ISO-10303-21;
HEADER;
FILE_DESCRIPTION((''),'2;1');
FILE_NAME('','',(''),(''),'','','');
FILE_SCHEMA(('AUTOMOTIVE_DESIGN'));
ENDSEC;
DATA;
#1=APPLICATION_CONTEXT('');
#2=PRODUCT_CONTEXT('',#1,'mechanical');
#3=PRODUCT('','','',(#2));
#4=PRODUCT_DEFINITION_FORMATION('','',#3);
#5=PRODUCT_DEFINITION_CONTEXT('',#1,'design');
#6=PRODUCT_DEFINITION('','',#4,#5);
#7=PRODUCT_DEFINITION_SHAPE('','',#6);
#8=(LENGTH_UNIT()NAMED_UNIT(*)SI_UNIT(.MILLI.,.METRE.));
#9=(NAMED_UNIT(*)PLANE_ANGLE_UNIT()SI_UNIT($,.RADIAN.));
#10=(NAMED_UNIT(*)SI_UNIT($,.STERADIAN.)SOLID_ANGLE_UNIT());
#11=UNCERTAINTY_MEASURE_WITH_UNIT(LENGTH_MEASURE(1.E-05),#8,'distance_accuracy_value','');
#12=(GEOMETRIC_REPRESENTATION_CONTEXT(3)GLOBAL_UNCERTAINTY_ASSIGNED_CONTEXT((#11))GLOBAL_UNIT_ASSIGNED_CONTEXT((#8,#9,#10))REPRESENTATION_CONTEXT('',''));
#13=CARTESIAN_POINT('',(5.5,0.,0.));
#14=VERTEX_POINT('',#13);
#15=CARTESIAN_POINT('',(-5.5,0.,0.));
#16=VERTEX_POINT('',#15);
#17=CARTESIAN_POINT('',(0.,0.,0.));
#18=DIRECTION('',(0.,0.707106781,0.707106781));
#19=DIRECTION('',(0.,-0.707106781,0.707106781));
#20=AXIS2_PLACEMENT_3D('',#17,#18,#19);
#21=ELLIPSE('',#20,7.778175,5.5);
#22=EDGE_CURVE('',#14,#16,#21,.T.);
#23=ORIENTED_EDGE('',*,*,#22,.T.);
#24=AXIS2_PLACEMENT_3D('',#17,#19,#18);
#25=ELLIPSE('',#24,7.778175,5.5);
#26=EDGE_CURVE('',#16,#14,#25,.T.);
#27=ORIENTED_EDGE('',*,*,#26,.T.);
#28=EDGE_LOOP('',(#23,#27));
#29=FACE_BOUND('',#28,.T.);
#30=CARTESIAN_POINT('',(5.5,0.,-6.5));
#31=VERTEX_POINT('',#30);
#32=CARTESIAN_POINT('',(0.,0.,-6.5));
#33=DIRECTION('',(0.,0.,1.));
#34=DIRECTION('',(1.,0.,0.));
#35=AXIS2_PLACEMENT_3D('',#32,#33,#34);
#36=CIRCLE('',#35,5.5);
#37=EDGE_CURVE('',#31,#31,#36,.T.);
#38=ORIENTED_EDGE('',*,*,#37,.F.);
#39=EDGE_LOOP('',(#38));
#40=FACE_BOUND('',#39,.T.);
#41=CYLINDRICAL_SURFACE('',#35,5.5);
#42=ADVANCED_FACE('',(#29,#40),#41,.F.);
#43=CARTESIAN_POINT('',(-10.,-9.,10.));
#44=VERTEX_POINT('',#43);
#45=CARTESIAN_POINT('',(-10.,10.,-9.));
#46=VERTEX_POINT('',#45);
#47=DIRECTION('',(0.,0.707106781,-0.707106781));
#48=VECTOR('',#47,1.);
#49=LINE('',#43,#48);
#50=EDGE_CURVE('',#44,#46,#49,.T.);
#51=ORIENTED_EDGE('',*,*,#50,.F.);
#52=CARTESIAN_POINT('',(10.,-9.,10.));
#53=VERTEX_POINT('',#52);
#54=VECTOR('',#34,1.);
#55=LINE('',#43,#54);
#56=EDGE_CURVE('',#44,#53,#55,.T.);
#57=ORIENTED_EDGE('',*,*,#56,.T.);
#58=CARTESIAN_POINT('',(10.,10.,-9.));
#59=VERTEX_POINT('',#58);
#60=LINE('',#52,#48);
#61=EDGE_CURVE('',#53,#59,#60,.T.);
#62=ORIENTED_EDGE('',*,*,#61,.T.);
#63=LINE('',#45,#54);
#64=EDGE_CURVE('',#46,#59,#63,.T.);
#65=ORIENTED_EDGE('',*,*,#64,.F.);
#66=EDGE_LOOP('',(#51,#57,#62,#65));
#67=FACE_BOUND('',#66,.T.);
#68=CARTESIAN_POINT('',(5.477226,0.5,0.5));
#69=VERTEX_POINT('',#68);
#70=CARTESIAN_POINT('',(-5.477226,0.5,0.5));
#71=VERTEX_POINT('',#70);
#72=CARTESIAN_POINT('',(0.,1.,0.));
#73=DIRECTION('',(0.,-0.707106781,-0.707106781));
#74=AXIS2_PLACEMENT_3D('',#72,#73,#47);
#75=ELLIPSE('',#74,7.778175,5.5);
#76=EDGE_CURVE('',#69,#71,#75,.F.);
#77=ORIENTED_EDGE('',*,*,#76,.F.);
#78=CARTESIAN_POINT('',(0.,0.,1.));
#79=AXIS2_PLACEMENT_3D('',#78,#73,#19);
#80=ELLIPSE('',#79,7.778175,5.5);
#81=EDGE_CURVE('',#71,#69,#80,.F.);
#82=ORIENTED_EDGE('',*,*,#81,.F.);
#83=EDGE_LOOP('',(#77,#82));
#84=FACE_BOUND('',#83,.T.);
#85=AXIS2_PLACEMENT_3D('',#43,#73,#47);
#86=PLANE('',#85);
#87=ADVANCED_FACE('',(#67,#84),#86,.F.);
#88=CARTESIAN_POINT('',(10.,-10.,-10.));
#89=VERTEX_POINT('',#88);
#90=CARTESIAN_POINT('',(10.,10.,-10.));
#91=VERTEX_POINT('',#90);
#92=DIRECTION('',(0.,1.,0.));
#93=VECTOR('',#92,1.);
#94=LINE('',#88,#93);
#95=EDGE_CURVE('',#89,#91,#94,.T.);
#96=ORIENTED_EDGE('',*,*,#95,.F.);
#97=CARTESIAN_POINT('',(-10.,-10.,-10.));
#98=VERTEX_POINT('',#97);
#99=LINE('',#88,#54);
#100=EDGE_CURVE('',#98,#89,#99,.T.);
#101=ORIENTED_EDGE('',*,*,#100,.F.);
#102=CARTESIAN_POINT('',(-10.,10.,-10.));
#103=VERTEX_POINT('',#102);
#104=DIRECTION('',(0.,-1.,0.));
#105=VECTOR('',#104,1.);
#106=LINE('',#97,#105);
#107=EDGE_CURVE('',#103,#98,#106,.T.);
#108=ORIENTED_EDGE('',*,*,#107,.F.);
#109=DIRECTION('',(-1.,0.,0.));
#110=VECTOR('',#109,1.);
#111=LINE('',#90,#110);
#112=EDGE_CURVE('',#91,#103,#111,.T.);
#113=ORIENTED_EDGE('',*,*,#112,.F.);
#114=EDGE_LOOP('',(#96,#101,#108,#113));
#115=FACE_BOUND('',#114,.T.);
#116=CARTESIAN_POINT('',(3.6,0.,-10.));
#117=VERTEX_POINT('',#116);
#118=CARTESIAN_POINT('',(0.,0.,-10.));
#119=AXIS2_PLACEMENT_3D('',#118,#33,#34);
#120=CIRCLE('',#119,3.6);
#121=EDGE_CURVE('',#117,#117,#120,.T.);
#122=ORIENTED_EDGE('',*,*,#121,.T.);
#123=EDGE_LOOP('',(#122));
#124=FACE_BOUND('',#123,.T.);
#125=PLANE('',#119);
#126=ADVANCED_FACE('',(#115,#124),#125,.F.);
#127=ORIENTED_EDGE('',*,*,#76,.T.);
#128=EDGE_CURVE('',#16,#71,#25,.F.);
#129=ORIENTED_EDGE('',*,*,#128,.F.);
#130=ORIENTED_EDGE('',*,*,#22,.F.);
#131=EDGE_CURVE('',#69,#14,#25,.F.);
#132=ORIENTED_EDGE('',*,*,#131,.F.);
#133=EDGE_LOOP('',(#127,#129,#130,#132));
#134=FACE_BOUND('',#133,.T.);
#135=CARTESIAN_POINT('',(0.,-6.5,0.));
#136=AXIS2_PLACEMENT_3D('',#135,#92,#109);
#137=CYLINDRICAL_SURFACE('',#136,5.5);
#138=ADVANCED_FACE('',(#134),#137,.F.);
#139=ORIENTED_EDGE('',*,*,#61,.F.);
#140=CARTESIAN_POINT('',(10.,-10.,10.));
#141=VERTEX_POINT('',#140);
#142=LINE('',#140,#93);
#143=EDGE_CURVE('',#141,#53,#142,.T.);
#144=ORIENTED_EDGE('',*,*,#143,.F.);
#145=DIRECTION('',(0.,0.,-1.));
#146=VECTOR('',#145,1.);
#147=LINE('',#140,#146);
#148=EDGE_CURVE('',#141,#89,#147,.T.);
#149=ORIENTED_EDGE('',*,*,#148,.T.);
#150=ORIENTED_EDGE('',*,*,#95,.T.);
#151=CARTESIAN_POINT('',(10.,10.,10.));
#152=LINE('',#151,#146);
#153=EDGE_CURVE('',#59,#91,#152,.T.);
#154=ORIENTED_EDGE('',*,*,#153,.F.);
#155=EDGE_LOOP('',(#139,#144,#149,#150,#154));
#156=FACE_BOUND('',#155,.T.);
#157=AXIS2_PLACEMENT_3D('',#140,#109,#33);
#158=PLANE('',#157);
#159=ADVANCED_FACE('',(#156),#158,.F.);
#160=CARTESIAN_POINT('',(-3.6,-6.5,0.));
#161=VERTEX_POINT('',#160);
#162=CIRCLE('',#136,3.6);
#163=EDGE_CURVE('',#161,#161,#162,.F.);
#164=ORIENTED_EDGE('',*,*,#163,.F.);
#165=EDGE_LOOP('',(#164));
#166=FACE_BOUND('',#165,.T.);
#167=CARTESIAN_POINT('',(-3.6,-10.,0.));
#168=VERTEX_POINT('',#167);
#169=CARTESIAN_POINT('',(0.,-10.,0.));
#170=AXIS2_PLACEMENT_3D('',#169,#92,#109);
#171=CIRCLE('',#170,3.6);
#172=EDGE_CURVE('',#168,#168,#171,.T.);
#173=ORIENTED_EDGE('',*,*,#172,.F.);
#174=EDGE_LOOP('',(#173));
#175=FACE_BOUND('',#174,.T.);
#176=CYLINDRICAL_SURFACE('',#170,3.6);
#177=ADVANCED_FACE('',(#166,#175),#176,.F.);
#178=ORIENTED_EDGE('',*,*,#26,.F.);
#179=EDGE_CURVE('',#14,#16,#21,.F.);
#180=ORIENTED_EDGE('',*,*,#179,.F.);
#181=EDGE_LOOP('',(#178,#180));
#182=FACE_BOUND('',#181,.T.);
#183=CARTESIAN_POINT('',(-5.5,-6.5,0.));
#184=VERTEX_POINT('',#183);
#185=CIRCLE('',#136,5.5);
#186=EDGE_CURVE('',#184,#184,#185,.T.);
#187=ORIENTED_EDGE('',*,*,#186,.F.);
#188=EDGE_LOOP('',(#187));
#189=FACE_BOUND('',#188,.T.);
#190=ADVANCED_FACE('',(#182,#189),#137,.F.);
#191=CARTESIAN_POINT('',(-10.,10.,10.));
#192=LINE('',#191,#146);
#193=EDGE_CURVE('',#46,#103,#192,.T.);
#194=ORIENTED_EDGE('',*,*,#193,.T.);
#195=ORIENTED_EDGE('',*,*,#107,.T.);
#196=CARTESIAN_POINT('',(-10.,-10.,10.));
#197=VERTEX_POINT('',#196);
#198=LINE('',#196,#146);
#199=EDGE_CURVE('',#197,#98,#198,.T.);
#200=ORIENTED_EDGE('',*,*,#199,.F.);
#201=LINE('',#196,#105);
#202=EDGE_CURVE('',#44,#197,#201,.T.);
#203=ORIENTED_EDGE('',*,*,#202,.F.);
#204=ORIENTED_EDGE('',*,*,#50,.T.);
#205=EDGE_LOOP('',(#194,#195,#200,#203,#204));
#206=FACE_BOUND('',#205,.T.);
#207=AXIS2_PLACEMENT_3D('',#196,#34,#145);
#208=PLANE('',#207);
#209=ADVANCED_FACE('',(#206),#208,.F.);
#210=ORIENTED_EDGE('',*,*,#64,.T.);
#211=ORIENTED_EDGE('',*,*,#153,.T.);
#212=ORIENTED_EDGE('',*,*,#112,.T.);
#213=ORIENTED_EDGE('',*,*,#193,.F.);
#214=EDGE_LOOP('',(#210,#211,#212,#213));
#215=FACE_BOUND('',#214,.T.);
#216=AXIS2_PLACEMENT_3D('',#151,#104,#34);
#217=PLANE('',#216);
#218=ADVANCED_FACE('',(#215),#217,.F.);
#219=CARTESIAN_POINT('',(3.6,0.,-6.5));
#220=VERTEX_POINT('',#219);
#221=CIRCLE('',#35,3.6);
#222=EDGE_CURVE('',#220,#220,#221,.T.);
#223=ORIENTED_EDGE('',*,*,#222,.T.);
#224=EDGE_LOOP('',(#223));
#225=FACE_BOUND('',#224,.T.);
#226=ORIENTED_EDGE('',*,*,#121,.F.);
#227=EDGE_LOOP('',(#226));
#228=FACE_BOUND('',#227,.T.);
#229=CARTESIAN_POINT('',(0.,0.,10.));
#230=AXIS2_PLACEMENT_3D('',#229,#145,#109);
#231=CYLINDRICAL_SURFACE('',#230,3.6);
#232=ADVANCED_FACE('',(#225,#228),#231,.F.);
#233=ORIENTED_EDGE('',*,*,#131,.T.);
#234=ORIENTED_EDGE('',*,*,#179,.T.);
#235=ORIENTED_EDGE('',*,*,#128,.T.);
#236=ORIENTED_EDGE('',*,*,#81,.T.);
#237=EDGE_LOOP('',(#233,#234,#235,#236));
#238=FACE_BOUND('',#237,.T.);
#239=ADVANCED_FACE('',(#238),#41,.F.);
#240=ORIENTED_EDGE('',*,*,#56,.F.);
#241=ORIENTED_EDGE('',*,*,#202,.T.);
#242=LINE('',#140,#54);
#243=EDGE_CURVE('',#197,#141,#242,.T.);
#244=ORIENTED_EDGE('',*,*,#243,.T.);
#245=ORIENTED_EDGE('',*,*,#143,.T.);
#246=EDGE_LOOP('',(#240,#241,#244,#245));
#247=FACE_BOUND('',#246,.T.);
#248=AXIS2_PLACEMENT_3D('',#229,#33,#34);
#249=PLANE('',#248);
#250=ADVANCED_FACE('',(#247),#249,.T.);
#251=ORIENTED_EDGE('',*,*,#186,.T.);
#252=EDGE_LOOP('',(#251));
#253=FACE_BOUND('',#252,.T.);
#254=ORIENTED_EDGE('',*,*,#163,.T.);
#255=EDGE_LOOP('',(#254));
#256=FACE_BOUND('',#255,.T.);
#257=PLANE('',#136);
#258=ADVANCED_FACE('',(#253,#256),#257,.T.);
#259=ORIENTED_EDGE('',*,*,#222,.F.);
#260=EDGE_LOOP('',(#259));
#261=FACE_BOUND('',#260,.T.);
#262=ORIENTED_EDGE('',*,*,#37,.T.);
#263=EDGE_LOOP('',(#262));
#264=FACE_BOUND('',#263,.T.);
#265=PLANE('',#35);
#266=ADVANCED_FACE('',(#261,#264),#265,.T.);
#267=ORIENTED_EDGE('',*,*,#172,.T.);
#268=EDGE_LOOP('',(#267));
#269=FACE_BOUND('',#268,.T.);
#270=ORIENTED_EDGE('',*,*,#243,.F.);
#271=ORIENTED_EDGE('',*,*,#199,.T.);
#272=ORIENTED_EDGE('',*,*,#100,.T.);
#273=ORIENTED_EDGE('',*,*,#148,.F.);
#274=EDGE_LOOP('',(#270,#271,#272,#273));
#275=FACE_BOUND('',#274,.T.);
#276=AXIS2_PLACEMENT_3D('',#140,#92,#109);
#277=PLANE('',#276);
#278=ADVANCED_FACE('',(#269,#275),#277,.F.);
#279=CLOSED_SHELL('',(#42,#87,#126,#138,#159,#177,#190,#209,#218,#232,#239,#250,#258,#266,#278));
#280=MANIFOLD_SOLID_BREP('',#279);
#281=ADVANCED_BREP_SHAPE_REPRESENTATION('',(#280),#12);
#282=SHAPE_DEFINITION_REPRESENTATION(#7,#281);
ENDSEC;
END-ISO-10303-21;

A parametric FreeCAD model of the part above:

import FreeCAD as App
import Part
import Sketcher

V = App.Vector

doc = App.newDocument("Part")
params = doc.addObject("Spreadsheet::Sheet", "Params")
for row, (alias, value) in enumerate([
    ("sketch1_diameter", "7.2 mm"),
    ("sketch1_width", "20 mm"),
    ("pad1_length", "20 mm"),
    ("sketch2_diameter", "11 mm"),
    ("pocket1_length", "16.5 mm"),
    ("sketch3_diameter", "7.2 mm"),
    ("sketch4_diameter", "11 mm"),
    ("pocket3_length", "16.5 mm"),
    ("sketch5_width", "19 mm"),
], start=1):
    params.set(f"A{row}", alias)
    params.set(f"B{row}", "=" + value)
    params.setAlias(f"B{row}", alias)

body = doc.addObject("PartDesign::Body", "Body")

sketch1 = doc.addObject("Sketcher::SketchObject", "Sketch")
body.addObject(sketch1)
sketch1.AttachmentSupport = (doc.XY_Plane, [""])
sketch1.MapMode = "FlatFace"
sketch1.addGeometry(Part.LineSegment(V(-10, 10, 0), V(-10, -10, 0)), False)
sketch1.addGeometry(Part.LineSegment(V(-10, -10, 0), V(10, -10, 0)), False)
sketch1.addGeometry(Part.LineSegment(V(10, -10, 0), V(10, 10, 0)), False)
sketch1.addGeometry(Part.LineSegment(V(10, 10, 0), V(-10, 10, 0)), False)
sketch1.addGeometry(Part.Circle(V(0, 0, 0), V(0, 0, 1), 3.6), False)
sketch1.addConstraint(Sketcher.Constraint("Coincident", 0, 2, 1, 1))
sketch1.addConstraint(Sketcher.Constraint("Coincident", 1, 2, 2, 1))
sketch1.addConstraint(Sketcher.Constraint("Coincident", 2, 2, 3, 1))
sketch1.addConstraint(Sketcher.Constraint("Coincident", 3, 2, 0, 1))
sketch1.addConstraint(Sketcher.Constraint("Vertical", 0))
sketch1.addConstraint(Sketcher.Constraint("Horizontal", 1))
sketch1.addConstraint(Sketcher.Constraint("Vertical", 2))
sketch1.addConstraint(Sketcher.Constraint("Horizontal", 3))
sketch1.addConstraint(Sketcher.Constraint("Coincident", 4, 3, -1, 1))
sketch1.addConstraint(Sketcher.Constraint("Symmetric", 0, 2, 2, 2, -1, 1))
sketch1.addConstraint(Sketcher.Constraint("Equal", 3, 0))
sketch1.addConstraint(Sketcher.Constraint("Diameter", 4, 7.2))
sketch1.addConstraint(Sketcher.Constraint("DistanceX", 1, 1, 1, 2, 20.0))
sketch1.setExpression("Constraints[11]", "Params.sketch1_diameter")
sketch1.setExpression("Constraints[12]", "Params.sketch1_width")
pad1 = doc.addObject("PartDesign::Pad", "Pad")
body.addObject(pad1)
pad1.Profile = sketch1
pad1.setExpression("Length", "Params.pad1_length")
pad1.Midplane = True

sketch2 = doc.addObject("Sketcher::SketchObject", "Sketch001")
body.addObject(sketch2)
sketch2.AttachmentSupport = (doc.XY_Plane, [""])
sketch2.MapMode = "FlatFace"
sketch2.AttachmentOffset = App.Placement(V(0, 0, 10), App.Rotation())
sketch2.addGeometry(Part.Circle(V(0, 0, 0), V(0, 0, 1), 5.5), False)
sketch2.addConstraint(Sketcher.Constraint("Coincident", 0, 3, -1, 1))
sketch2.addConstraint(Sketcher.Constraint("Diameter", 0, 11.0))
sketch2.setExpression("Constraints[1]", "Params.sketch2_diameter")
pocket1 = doc.addObject("PartDesign::Pocket", "Pocket")
body.addObject(pocket1)
pocket1.Profile = sketch2
pocket1.setExpression("Length", "Params.pocket1_length")

sketch3 = doc.addObject("Sketcher::SketchObject", "Sketch002")
body.addObject(sketch3)
sketch3.AttachmentSupport = (doc.XZ_Plane, [""])
sketch3.MapMode = "FlatFace"
sketch3.AttachmentOffset = App.Placement(V(0, 0, -10), App.Rotation())
sketch3.addGeometry(Part.Circle(V(0, 0, 0), V(0, 0, 1), 3.6), False)
sketch3.addConstraint(Sketcher.Constraint("Coincident", 0, 3, -1, 1))
sketch3.addConstraint(Sketcher.Constraint("Diameter", 0, 7.2))
sketch3.setExpression("Constraints[1]", "Params.sketch3_diameter")
pocket2 = doc.addObject("PartDesign::Pocket", "Pocket001")
body.addObject(pocket2)
pocket2.Profile = sketch3
pocket2.Type = "ThroughAll"
pocket2.Reversed = True

sketch4 = doc.addObject("Sketcher::SketchObject", "Sketch003")
body.addObject(sketch4)
sketch4.AttachmentSupport = (doc.XZ_Plane, [""])
sketch4.MapMode = "FlatFace"
sketch4.AttachmentOffset = App.Placement(V(0, 0, -10), App.Rotation())
sketch4.addGeometry(Part.Circle(V(0, 0, 0), V(0, 0, 1), 5.5), False)
sketch4.addConstraint(Sketcher.Constraint("Coincident", 0, 3, -1, 1))
sketch4.addConstraint(Sketcher.Constraint("Diameter", 0, 11.0))
sketch4.setExpression("Constraints[1]", "Params.sketch4_diameter")
pocket3 = doc.addObject("PartDesign::Pocket", "Pocket002")
body.addObject(pocket3)
pocket3.Profile = sketch4
pocket3.setExpression("Length", "Params.pocket3_length")
pocket3.Reversed = True

sketch5 = doc.addObject("Sketcher::SketchObject", "Sketch004")
body.addObject(sketch5)
sketch5.AttachmentSupport = (doc.YZ_Plane, [""])
sketch5.MapMode = "FlatFace"
sketch5.AttachmentOffset = App.Placement(V(0, 0, 10), App.Rotation())
sketch5.addGeometry(Part.LineSegment(V(-9, 10, 0), V(10, -9, 0)), False)
sketch5.addGeometry(Part.LineSegment(V(10, -9, 0), V(10, 10, 0)), False)
sketch5.addGeometry(Part.LineSegment(V(10, 10, 0), V(-9, 10, 0)), False)
sketch5.addConstraint(Sketcher.Constraint("Coincident", 0, 2, 1, 1))
sketch5.addConstraint(Sketcher.Constraint("Coincident", 1, 2, 2, 1))
sketch5.addConstraint(Sketcher.Constraint("Coincident", 2, 2, 0, 1))
sketch5.addConstraint(Sketcher.Constraint("Vertical", 1))
sketch5.addConstraint(Sketcher.Constraint("Horizontal", 2))
sketch5.addConstraint(Sketcher.Constraint("Equal", 2, 1))
sketch5.addConstraint(Sketcher.Constraint("DistanceX", 2, 2, 2, 1, 19.0))
sketch5.addConstraint(Sketcher.Constraint("DistanceX", -1, 1, 0, 2, 10.0))
sketch5.addConstraint(Sketcher.Constraint("DistanceY", 0, 2, -1, 1, 9.0))
sketch5.setExpression("Constraints[6]", "Params.sketch5_width")
pocket4 = doc.addObject("PartDesign::Pocket", "Pocket003")
body.addObject(pocket4)
pocket4.Profile = sketch5
pocket4.Type = "ThroughAll"

doc.recompute()
